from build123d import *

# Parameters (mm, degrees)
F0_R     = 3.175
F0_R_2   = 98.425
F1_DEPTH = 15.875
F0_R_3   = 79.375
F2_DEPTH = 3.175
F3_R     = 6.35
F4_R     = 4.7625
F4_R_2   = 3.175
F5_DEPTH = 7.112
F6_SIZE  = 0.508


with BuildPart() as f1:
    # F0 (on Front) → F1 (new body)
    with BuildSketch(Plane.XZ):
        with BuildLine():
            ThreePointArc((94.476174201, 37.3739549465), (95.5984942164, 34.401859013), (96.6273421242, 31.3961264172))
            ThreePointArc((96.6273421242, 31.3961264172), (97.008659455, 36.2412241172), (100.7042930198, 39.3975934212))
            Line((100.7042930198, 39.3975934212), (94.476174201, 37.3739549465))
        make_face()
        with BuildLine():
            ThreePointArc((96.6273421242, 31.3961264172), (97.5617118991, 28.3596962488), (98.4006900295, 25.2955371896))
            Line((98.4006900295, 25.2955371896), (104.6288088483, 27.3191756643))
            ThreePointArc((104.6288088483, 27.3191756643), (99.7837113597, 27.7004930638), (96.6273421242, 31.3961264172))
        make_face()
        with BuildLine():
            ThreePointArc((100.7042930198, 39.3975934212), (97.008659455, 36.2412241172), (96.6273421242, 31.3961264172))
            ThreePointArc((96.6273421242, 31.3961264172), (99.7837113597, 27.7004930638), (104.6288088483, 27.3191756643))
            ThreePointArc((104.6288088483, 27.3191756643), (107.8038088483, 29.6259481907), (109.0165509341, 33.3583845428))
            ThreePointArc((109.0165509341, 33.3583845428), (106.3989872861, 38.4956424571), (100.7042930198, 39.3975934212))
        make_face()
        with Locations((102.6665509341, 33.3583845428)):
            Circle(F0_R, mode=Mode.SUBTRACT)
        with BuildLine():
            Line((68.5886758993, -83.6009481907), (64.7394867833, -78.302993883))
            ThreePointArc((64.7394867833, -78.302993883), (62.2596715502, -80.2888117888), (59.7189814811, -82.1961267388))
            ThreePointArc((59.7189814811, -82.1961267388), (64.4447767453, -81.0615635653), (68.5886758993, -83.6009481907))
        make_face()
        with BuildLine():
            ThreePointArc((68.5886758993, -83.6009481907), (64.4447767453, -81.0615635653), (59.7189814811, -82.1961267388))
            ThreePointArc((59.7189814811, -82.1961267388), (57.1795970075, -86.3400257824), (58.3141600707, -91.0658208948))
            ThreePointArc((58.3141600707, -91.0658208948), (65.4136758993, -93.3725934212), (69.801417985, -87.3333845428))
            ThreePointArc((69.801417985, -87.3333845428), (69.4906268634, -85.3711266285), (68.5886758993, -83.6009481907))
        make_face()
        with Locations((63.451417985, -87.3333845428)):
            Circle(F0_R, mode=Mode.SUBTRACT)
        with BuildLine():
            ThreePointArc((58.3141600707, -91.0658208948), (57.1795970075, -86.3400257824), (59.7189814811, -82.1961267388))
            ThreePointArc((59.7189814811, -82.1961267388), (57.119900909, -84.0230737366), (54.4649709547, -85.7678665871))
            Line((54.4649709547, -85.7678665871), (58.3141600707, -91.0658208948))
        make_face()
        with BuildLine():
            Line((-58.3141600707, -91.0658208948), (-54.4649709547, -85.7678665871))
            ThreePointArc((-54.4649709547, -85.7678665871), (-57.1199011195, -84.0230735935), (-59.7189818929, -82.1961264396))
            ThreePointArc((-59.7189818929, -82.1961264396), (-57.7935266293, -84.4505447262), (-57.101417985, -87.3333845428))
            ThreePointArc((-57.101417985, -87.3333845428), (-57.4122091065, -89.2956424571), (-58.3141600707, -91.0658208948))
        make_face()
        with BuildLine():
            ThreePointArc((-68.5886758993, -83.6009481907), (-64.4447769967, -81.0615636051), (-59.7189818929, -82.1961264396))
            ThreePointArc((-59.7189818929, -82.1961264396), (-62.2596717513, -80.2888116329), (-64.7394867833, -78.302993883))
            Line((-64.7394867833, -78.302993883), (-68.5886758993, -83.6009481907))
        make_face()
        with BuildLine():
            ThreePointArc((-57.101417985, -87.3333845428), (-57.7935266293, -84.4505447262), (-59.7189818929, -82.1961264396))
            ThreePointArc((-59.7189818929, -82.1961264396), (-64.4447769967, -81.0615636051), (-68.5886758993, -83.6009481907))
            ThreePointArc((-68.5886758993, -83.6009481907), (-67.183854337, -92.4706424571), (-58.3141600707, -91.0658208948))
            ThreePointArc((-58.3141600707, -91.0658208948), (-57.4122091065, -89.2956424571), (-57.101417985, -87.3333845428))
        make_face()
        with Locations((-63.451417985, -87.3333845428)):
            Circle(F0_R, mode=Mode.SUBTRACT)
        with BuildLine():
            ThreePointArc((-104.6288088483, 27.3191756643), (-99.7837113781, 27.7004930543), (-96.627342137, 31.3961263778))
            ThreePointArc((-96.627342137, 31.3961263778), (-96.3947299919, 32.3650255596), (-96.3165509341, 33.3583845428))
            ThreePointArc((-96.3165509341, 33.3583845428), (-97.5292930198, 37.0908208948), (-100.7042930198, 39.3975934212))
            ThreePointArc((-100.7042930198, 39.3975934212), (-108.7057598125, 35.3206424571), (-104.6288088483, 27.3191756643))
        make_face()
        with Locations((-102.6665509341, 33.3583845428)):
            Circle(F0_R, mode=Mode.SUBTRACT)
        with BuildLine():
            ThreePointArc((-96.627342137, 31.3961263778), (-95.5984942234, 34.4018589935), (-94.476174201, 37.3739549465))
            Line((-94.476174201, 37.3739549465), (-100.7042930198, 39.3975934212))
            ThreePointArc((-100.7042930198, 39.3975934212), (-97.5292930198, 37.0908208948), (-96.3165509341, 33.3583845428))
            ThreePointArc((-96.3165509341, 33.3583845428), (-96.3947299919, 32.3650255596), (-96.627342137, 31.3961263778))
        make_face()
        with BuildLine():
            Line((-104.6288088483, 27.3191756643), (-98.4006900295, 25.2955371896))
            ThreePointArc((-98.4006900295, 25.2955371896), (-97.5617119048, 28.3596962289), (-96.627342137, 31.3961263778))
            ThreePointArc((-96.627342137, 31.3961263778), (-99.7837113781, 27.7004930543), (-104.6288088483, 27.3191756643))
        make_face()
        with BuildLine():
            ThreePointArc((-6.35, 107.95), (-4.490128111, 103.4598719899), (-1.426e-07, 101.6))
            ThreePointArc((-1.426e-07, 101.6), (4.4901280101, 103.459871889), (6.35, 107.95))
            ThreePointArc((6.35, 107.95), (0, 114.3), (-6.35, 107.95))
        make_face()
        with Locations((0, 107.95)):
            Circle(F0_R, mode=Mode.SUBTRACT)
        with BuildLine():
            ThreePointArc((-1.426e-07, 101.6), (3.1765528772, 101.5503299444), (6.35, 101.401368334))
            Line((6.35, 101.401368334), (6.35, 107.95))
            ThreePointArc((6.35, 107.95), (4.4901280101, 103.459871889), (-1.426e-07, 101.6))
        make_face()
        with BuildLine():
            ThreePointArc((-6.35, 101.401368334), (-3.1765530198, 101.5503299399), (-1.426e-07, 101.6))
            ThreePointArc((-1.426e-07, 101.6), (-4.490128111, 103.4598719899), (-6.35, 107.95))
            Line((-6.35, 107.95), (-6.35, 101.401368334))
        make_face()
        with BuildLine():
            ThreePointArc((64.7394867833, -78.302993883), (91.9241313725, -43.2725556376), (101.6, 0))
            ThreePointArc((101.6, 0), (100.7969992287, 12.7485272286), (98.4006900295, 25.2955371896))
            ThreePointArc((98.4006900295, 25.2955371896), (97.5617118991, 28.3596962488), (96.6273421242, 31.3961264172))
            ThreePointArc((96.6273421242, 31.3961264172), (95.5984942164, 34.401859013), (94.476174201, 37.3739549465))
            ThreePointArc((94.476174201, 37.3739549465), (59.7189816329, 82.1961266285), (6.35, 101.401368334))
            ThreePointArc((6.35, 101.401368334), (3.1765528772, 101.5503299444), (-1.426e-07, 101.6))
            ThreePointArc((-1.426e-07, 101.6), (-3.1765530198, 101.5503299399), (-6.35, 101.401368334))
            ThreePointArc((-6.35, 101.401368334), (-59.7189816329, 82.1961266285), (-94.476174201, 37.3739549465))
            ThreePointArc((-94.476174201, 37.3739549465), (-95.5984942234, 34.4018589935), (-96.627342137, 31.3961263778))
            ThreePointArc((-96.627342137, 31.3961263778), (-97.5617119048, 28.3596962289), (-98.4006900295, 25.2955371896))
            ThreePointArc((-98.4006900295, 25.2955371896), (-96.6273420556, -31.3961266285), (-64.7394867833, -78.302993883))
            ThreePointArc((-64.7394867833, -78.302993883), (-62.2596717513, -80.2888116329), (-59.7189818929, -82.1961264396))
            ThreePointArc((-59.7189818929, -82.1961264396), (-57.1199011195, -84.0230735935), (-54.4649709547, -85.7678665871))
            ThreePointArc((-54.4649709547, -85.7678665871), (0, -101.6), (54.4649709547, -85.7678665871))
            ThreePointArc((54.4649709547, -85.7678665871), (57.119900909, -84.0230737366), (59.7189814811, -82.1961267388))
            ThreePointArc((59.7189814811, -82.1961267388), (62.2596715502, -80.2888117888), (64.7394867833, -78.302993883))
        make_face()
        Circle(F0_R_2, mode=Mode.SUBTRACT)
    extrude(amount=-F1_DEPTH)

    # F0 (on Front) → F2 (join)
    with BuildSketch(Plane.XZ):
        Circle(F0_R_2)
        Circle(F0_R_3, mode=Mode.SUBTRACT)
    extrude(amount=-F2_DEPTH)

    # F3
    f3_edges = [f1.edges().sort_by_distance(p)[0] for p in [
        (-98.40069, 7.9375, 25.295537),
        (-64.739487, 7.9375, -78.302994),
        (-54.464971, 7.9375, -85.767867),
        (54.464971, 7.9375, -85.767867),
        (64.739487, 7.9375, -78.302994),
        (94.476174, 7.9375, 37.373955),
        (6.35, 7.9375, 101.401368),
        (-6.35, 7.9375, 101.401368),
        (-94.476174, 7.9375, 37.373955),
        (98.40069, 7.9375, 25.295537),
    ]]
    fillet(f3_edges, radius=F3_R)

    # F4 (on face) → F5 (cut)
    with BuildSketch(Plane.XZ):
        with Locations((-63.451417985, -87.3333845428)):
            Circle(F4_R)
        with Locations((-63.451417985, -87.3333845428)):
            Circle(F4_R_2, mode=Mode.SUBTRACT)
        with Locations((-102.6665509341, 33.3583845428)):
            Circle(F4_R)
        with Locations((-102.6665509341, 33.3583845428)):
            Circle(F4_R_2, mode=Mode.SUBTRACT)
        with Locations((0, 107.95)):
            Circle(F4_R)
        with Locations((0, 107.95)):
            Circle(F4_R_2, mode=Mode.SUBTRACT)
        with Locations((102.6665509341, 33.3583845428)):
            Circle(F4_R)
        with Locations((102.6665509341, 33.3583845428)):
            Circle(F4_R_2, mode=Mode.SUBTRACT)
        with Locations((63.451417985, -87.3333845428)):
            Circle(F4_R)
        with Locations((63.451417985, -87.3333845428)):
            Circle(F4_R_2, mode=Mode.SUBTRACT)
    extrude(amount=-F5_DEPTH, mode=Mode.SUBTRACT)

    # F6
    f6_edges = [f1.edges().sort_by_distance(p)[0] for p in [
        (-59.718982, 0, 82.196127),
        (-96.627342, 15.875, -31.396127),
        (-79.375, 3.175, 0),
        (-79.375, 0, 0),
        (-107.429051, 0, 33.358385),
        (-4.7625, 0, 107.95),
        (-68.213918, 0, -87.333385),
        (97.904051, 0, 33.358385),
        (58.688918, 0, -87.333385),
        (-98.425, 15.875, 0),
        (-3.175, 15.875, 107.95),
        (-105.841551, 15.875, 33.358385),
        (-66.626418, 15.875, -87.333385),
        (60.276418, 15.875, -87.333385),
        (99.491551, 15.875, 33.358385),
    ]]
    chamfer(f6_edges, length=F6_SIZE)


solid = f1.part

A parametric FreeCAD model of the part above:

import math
import FreeCAD as App
import Part
import Sketcher
from FreeCAD import Vector
Q = App.Units.Quantity


def edges_at(feature, points):
    """Names of the edges that pass closest to the given points."""
    edges = feature.Shape.Edges
    near = lambda p: min(range(len(edges)), key=lambda i: edges[i].distToShape(Part.Vertex(*p))[0])
    return sorted({f"Edge{near(p) + 1}" for p in points})

doc = App.newDocument("Part")
body = doc.addObject("PartDesign::Body", "Body")

# Sketch on XZ plane
sketch1 = body.newObject("Sketcher::SketchObject", "Sketch")
sketch1.AttachmentSupport = (doc.getObject("XZ_Plane"), [""])
sketch1.MapMode = "FlatFace"
sketch1.addGeometry(Part.LineSegment(Vector(100.704293, 39.397593, 0), Vector(94.476174, 37.373955, 0)), False)
sketch1.addGeometry(Part.ArcOfCircle(Part.Circle(Vector(0, 0, 0), Vector(0, 0, 1), 101.6), math.radians(21.583322), math.radians(86.416678)), False)
sketch1.addGeometry(Part.LineSegment(Vector(6.35, 101.401368, 0), Vector(6.35, 107.95, 0)), False)
sketch1.addGeometry(Part.ArcOfCircle(Part.Circle(Vector(0, 107.95, 0), Vector(0, 0, 1), 6.35), math.radians(0), math.radians(180)), False)
sketch1.addGeometry(Part.LineSegment(Vector(-6.35, 107.95, 0), Vector(-6.35, 101.401368, 0)), False)
sketch1.addGeometry(Part.ArcOfCircle(Part.Circle(Vector(0, 0, 0), Vector(0, 0, 1), 101.6), math.radians(93.583322), math.radians(158.416678)), False)
sketch1.addGeometry(Part.LineSegment(Vector(-94.476174, 37.373955, 0), Vector(-100.704293, 39.397593, 0)), False)
sketch1.addGeometry(Part.ArcOfCircle(Part.Circle(Vector(-102.666551, 33.358385, 0), Vector(0, 0, 1), 6.35), math.radians(72), math.radians(252)), False)
sketch1.addGeometry(Part.LineSegment(Vector(-104.628809, 27.319176, 0), Vector(-98.40069, 25.295537, 0)), False)
sketch1.addGeometry(Part.ArcOfCircle(Part.Circle(Vector(0, 0, 0), Vector(0, 0, 1), 101.6), math.radians(165.583322), math.radians(230.416678)), False)
sketch1.addGeometry(Part.LineSegment(Vector(-64.739487, -78.302994, 0), Vector(-68.588676, -83.600948, 0)), False)
sketch1.addGeometry(Part.ArcOfCircle(Part.Circle(Vector(-63.451418, -87.333385, 0), Vector(0, 0, 1), 6.35), math.radians(144), math.radians(324)), False)
sketch1.addGeometry(Part.LineSegment(Vector(-58.31416, -91.065821, 0), Vector(-54.464971, -85.767867, 0)), False)
sketch1.addGeometry(Part.ArcOfCircle(Part.Circle(Vector(0, 0, 0), Vector(0, 0, 1), 101.6), math.radians(-122.416678), math.radians(-57.583322)), False)
sketch1.addGeometry(Part.LineSegment(Vector(54.464971, -85.767867, 0), Vector(58.31416, -91.065821, 0)), False)
sketch1.addGeometry(Part.ArcOfCircle(Part.Circle(Vector(63.451418, -87.333385, 0), Vector(0, 0, 1), 6.35), math.radians(-144), math.radians(0)), False)
sketch1.addGeometry(Part.ArcOfCircle(Part.Circle(Vector(63.451418, -87.333385, 0), Vector(0, 0, 1), 6.35), math.radians(0), math.radians(36)), False)
sketch1.addGeometry(Part.LineSegment(Vector(68.588676, -83.600948, 0), Vector(64.739487, -78.302994, 0)), False)
sketch1.addGeometry(Part.ArcOfCircle(Part.Circle(Vector(0, 0, 0), Vector(0, 0, 1), 101.6), math.radians(-50.416678), math.radians(0)), False)
sketch1.addGeometry(Part.ArcOfCircle(Part.Circle(Vector(0, 0, 0), Vector(0, 0, 1), 101.6), math.radians(0), math.radians(14.416678)), False)
sketch1.addGeometry(Part.LineSegment(Vector(98.40069, 25.295537, 0), Vector(104.628809, 27.319176, 0)), False)
sketch1.addGeometry(Part.ArcOfCircle(Part.Circle(Vector(102.666551, 33.358385, 0), Vector(0, 0, 1), 6.35), math.radians(-72), math.radians(0)), False)
sketch1.addGeometry(Part.ArcOfCircle(Part.Circle(Vector(102.666551, 33.358385, 0), Vector(0, 0, 1), 6.35), math.radians(0), math.radians(108)), False)
sketch1.addGeometry(Part.Circle(Vector(-63.451418, -87.333385, 0), Vector(0, 0, 1), 3.175), False)
sketch1.addGeometry(Part.Circle(Vector(63.451418, -87.333385, 0), Vector(0, 0, 1), 3.175), False)
sketch1.addGeometry(Part.Circle(Vector(0, 0, 0), Vector(0, 0, 1), 98.425), False)
sketch1.addGeometry(Part.Circle(Vector(-102.666551, 33.358385, 0), Vector(0, 0, 1), 3.175), False)
sketch1.addGeometry(Part.Circle(Vector(102.666551, 33.358385, 0), Vector(0, 0, 1), 3.175), False)
sketch1.addGeometry(Part.Circle(Vector(0, 107.95, 0), Vector(0, 0, 1), 3.175), False)
sketch1.addConstraint(Sketcher.Constraint("Coincident", 0, 2, 1, 1))
sketch1.addConstraint(Sketcher.Constraint("Coincident", 1, 2, 2, 1))
sketch1.addConstraint(Sketcher.Constraint("Tangent", 2, 2, 3, 1))
sketch1.addConstraint(Sketcher.Constraint("Tangent", 3, 2, 4, 1))
sketch1.addConstraint(Sketcher.Constraint("Coincident", 4, 2, 5, 1))
sketch1.addConstraint(Sketcher.Constraint("Coincident", 5, 2, 6, 1))
sketch1.addConstraint(Sketcher.Constraint("Tangent", 6, 2, 7, 1))
sketch1.addConstraint(Sketcher.Constraint("Tangent", 7, 2, 8, 1))
sketch1.addConstraint(Sketcher.Constraint("Coincident", 8, 2, 9, 1))
sketch1.addConstraint(Sketcher.Constraint("Coincident", 9, 2, 10, 1))
sketch1.addConstraint(Sketcher.Constraint("Tangent", 10, 2, 11, 1))
sketch1.addConstraint(Sketcher.Constraint("Tangent", 11, 2, 12, 1))
sketch1.addConstraint(Sketcher.Constraint("Coincident", 12, 2, 13, 1))
sketch1.addConstraint(Sketcher.Constraint("Coincident", 13, 2, 14, 1))
sketch1.addConstraint(Sketcher.Constraint("Tangent", 14, 2, 15, 1))
sketch1.addConstraint(Sketcher.Constraint("Tangent", 15, 2, 16, 1))
sketch1.addConstraint(Sketcher.Constraint("Tangent", 16, 2, 17, 1))
sketch1.addConstraint(Sketcher.Constraint("Coincident", 17, 2, 18, 1))
sketch1.addConstraint(Sketcher.Constraint("Tangent", 18, 2, 19, 1))
sketch1.addConstraint(Sketcher.Constraint("Coincident", 19, 2, 20, 1))
sketch1.addConstraint(Sketcher.Constraint("Tangent", 20, 2, 21, 1))
sketch1.addConstraint(Sketcher.Constraint("Tangent", 21, 2, 22, 1))
sketch1.addConstraint(Sketcher.Constraint("Tangent", 22, 2, 0, 1))
sketch1.addConstraint(Sketcher.Constraint("Vertical", 2))
sketch1.addConstraint(Sketcher.Constraint("Vertical", 4))
sketch1.addConstraint(Sketcher.Constraint("Coincident", 1, 3, -1, 1))
sketch1.addConstraint(Sketcher.Constraint("Coincident", 5, 3, -1, 1))
sketch1.addConstraint(Sketcher.Constraint("Coincident", 9, 3, -1, 1))
sketch1.addConstraint(Sketcher.Constraint("Coincident", 13, 3, -1, 1))
sketch1.addConstraint(Sketcher.Constraint("Coincident", 18, 3, -1, 1))
sketch1.addConstraint(Sketcher.Constraint("Coincident", 25, 3, -1, 1))
sketch1.addConstraint(Sketcher.Constraint("Coincident", 23, 3, 11, 3))
sketch1.addConstraint(Sketcher.Constraint("Coincident", 24, 3, 15, 3))
sketch1.addConstraint(Sketcher.Constraint("Coincident", 26, 3, 7, 3))
sketch1.addConstraint(Sketcher.Constraint("Coincident", 27, 3, 21, 3))
sketch1.addConstraint(Sketcher.Constraint("Coincident", 28, 3, 3, 3))
sketch1.addConstraint(Sketcher.Constraint("Equal", 1, 5))
sketch1.addConstraint(Sketcher.Constraint("Equal", 3, 7))
sketch1.addConstraint(Sketcher.Constraint("Equal", 5, 9))
sketch1.addConstraint(Sketcher.Constraint("Equal", 7, 11))
sketch1.addConstraint(Sketcher.Constraint("Equal", 9, 13))
sketch1.addConstraint(Sketcher.Constraint("Equal", 11, 15))
sketch1.addConstraint(Sketcher.Constraint("Equal", 15, 16))
sketch1.addConstraint(Sketcher.Constraint("Equal", 13, 18))
sketch1.addConstraint(Sketcher.Constraint("Equal", 18, 19))
sketch1.addConstraint(Sketcher.Constraint("Equal", 16, 21))
sketch1.addConstraint(Sketcher.Constraint("Equal", 21, 22))
sketch1.addConstraint(Sketcher.Constraint("Equal", 23, 24))
sketch1.addConstraint(Sketcher.Constraint("Equal", 24, 26))
sketch1.addConstraint(Sketcher.Constraint("Equal", 26, 27))
sketch1.addConstraint(Sketcher.Constraint("Equal", 27, 28))
sketch1.addConstraint(Sketcher.Constraint("Symmetric", 11, 3, 15, 3, -2))
sketch1.addConstraint(Sketcher.Constraint("Symmetric", 7, 3, 21, 3, -2))
sketch1.addConstraint(Sketcher.Constraint("PointOnObject", 3, 3, -2))
sketch1.addConstraint(Sketcher.Constraint("PointOnObject", 18, 2, -1))
sketch1.addConstraint(Sketcher.Constraint("Parallel", 6, 8))
sketch1.addConstraint(Sketcher.Constraint("Parallel", 10, 12))
sketch1.addConstraint(Sketcher.Constraint("Parallel", 14, 17))
sketch1.addConstraint(Sketcher.Constraint("Parallel", 0, 20))
sketch1.addConstraint(Sketcher.Constraint("Horizontal", 0, 2, 5, 2))
sketch1.addConstraint(Sketcher.Constraint("Horizontal", 12, 2, 13, 2))
sketch1.addConstraint(Sketcher.Constraint("Horizontal", 24, 3, 15, 2))
sketch1.addConstraint(Sketcher.Constraint("Horizontal", 27, 3, 21, 2))
sketch1.addConstraint(Sketcher.Constraint("Equal", 6, 8))
sketch1.addConstraint(Sketcher.Constraint("Equal", 8, 10))
sketch1.addConstraint(Sketcher.Constraint("Equal", 10, 12))
sketch1.addConstraint(Sketcher.Constraint("Radius", 1, Q("4 in")))
sketch1.addConstraint(Sketcher.Constraint("Diameter", 23, Q("0.25 in")))
sketch1.addConstraint(Sketcher.Constraint("Diameter", 25, Q("7.75 in")))
sketch1.addConstraint(Sketcher.Constraint("Radius", 3, Q("0.25 in")))
sketch1.addConstraint(Sketcher.Constraint("Angle", 0, Q("-162 deg")))
sketch1.addConstraint(Sketcher.Constraint("Angle", 10, Q("-126 deg")))
sketch1.addConstraint(Sketcher.Constraint("DistanceY", -1, 1, 3, 3, Q("4.25 in")))
sketch1.addConstraint(Sketcher.Constraint("Distance", 0, Q("6.548632 mm")))
pad1 = body.newObject("PartDesign::Pad", "Pad")
pad1.Profile = sketch1
pad1.Length = Q("0.625 in")
pad1.Reversed = True

# Sketch on XZ plane
sketch2 = body.newObject("Sketcher::SketchObject", "Sketch001")
sketch2.AttachmentSupport = (doc.getObject("XZ_Plane"), [""])
sketch2.MapMode = "FlatFace"
sketch2.addGeometry(Part.Circle(Vector(0, 0, 0), Vector(0, 0, 1), 98.425), False)
sketch2.addGeometry(Part.Circle(Vector(0, 0, 0), Vector(0, 0, 1), 79.375), False)
sketch2.addConstraint(Sketcher.Constraint("Coincident", 0, 3, -1, 1))
sketch2.addConstraint(Sketcher.Constraint("Coincident", 1, 3, -1, 1))
sketch2.addConstraint(Sketcher.Constraint("Diameter", 0, Q("7.75 in")))
sketch2.addConstraint(Sketcher.Constraint("Diameter", 1, Q("6.25 in")))
pad2 = body.newObject("PartDesign::Pad", "Pad001")
pad2.Profile = sketch2
pad2.Length = Q("0.125 in")
pad2.Reversed = True
doc.recompute()

fillet = body.newObject("PartDesign::Fillet", "Fillet")
fillet.Base = (pad2, edges_at(pad2, [
    (-98.401, 7.938, 25.296),
    (-64.739, 7.938, -78.303),
    (-54.465, 7.938, -85.768),
    (54.465, 7.938, -85.768),
    (64.739, 7.938, -78.303),
    (94.476, 7.938, 37.374),
    (6.35, 7.938, 101.401),
    (-6.35, 7.938, 101.401),
    (-94.476, 7.938, 37.374),
    (98.401, 7.938, 25.296),
]))
fillet.Radius = Q("0.25 in")

# Sketch on XZ plane
sketch3 = body.newObject("Sketcher::SketchObject", "Sketch002")
sketch3.AttachmentSupport = (doc.getObject("XZ_Plane"), [""])
sketch3.MapMode = "FlatFace"
sketch3.addGeometry(Part.Circle(Vector(-63.451418, -87.333385, 0), Vector(0, 0, 1), 4.7625), False)
sketch3.addGeometry(Part.Circle(Vector(-63.451418, -87.333385, 0), Vector(0, 0, 1), 3.175), False)
sketch3.addGeometry(Part.Circle(Vector(-102.666551, 33.358385, 0), Vector(0, 0, 1), 4.7625), False)
sketch3.addGeometry(Part.Circle(Vector(-102.666551, 33.358385, 0), Vector(0, 0, 1), 3.175), False)
sketch3.addGeometry(Part.Circle(Vector(0, 107.95, 0), Vector(0, 0, 1), 4.7625), False)
sketch3.addGeometry(Part.Circle(Vector(0, 107.95, 0), Vector(0, 0, 1), 3.175), False)
sketch3.addGeometry(Part.Circle(Vector(102.666551, 33.358385, 0), Vector(0, 0, 1), 4.7625), False)
sketch3.addGeometry(Part.Circle(Vector(102.666551, 33.358385, 0), Vector(0, 0, 1), 3.175), False)
sketch3.addGeometry(Part.Circle(Vector(63.451418, -87.333385, 0), Vector(0, 0, 1), 4.7625), False)
sketch3.addGeometry(Part.Circle(Vector(63.451418, -87.333385, 0), Vector(0, 0, 1), 3.175), False)
sketch3.addConstraint(Sketcher.Constraint("Coincident", 1, 3, 0, 3))
sketch3.addConstraint(Sketcher.Constraint("Coincident", 3, 3, 2, 3))
sketch3.addConstraint(Sketcher.Constraint("Coincident", 5, 3, 4, 3))
sketch3.addConstraint(Sketcher.Constraint("Coincident", 7, 3, 6, 3))
sketch3.addConstraint(Sketcher.Constraint("Coincident", 9, 3, 8, 3))
sketch3.addConstraint(Sketcher.Constraint("Equal", 0, 2))
sketch3.addConstraint(Sketcher.Constraint("Equal", 1, 3))
sketch3.addConstraint(Sketcher.Constraint("Equal", 2, 4))
sketch3.addConstraint(Sketcher.Constraint("Equal", 3, 5))
sketch3.addConstraint(Sketcher.Constraint("Equal", 4, 6))
sketch3.addConstraint(Sketcher.Constraint("Equal", 5, 7))
sketch3.addConstraint(Sketcher.Constraint("Equal", 6, 8))
sketch3.addConstraint(Sketcher.Constraint("Equal", 7, 9))
sketch3.addConstraint(Sketcher.Constraint("Symmetric", 2, 3, 6, 3, -2))
sketch3.addConstraint(Sketcher.Constraint("Symmetric", 0, 3, 8, 3, -2))
sketch3.addConstraint(Sketcher.Constraint("PointOnObject", 4, 3, -2))
sketch3.addConstraint(Sketcher.Constraint("Diameter", 1, Q("0.25 in")))
sketch3.addConstraint(Sketcher.Constraint("Diameter", 0, Q("0.375 in")))
sketch3.addConstraint(Sketcher.Constraint("DistanceY", -1, 1, 4, 3, Q("4.25 in")))
sketch3.addConstraint(Sketcher.Constraint("DistanceX", 2, 3, 6, 3, Q("205.333102 mm")))
sketch3.addConstraint(Sketcher.Constraint("DistanceY", 0, 3, 2, 3, Q("120.691769 mm")))
sketch3.addConstraint(Sketcher.Constraint("DistanceX", 0, 3, 6, 3, Q("166.117969 mm")))
sketch3.addConstraint(Sketcher.Constraint("DistanceY", 0, 3, -1, 1, Q("87.333385 mm")))
pocket1 = body.newObject("PartDesign::Pocket", "Pocket")
pocket1.Profile = sketch3
pocket1.Length = Q("0.28 in")
doc.recompute()

chamfer = body.newObject("PartDesign::Chamfer", "Chamfer")
chamfer.Base = (pocket1, edges_at(pocket1, [
    (-59.719, 0, 82.196),
    (-96.627, 15.875, -31.396),
    (-79.375, 3.175, 0),
    (-79.375, 0, 0),
    (-107.429, 0, 33.358),
    (-4.763, 0, 107.95),
    (-68.214, 0, -87.333),
    (97.904, 0, 33.358),
    (58.689, 0, -87.333),
    (-98.425, 15.875, 0),
    (-3.175, 15.875, 107.95),
    (-105.842, 15.875, 33.358),
    (-66.626, 15.875, -87.333),
    (60.276, 15.875, -87.333),
    (99.492, 15.875, 33.358),
]))
chamfer.Size = Q("0.02 in")

doc.recompute()
